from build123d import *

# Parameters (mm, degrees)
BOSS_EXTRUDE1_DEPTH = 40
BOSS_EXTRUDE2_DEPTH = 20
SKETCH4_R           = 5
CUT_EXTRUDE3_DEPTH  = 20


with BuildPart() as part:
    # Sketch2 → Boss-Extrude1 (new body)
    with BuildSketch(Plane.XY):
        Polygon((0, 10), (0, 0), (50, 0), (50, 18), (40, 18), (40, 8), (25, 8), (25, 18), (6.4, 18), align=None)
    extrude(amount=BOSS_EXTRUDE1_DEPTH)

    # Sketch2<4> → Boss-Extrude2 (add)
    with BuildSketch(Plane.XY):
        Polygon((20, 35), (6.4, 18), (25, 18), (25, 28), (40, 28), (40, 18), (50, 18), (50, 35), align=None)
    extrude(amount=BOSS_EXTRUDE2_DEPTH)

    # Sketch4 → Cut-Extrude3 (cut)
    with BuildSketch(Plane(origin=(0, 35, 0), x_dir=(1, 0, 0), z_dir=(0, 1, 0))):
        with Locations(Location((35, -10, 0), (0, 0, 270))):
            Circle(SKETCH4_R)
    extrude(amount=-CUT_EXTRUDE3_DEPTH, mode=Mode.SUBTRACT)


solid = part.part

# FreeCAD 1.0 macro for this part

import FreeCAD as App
import Part
import Sketcher
from FreeCAD import Vector
Q = App.Units.Quantity


def add_polygon(sketch, points):
    """Adds a closed chain of lines whose ends are joined by coincident constraints."""
    first, n = sketch.GeometryCount, len(points)
    for a, b in zip(points, points[1:] + points[:1]):
        sketch.addGeometry(Part.LineSegment(App.Vector(*a, 0), App.Vector(*b, 0)), False)
    for i in range(n):
        sketch.addConstraint(Sketcher.Constraint("Coincident", first + i, 2, first + (i + 1) % n, 1))

doc = App.newDocument("Part")
body = doc.addObject("PartDesign::Body", "Body")

sketch1 = body.newObject("Sketcher::SketchObject", "Sketch")
sketch1.AttachmentSupport = (doc.getObject("XY_Plane"), [""])
sketch1.MapMode = "FlatFace"
add_polygon(sketch1, [(0, 10), (0, 0), (50, 0), (50, 18), (40, 18), (40, 8), (25, 8), (25, 18), (6.4, 18)])
sketch1.addConstraint(Sketcher.Constraint("Vertical", 0))
sketch1.addConstraint(Sketcher.Constraint("Horizontal", 1))
sketch1.addConstraint(Sketcher.Constraint("Vertical", 2))
sketch1.addConstraint(Sketcher.Constraint("Horizontal", 3))
sketch1.addConstraint(Sketcher.Constraint("Vertical", 4))
sketch1.addConstraint(Sketcher.Constraint("Horizontal", 5))
sketch1.addConstraint(Sketcher.Constraint("Vertical", 6))
sketch1.addConstraint(Sketcher.Constraint("Horizontal", 7))
sketch1.addConstraint(Sketcher.Constraint("Coincident", 0, 2, -1, 1))
sketch1.addConstraint(Sketcher.Constraint("Horizontal", 3, 2, 6, 2))
sketch1.addConstraint(Sketcher.Constraint("Equal", 3, 0))
sketch1.addConstraint(Sketcher.Constraint("Equal", 0, 4))
sketch1.addConstraint(Sketcher.Constraint("DistanceX", 1, 1, 1, 2, Q("50 mm")))
sketch1.addConstraint(Sketcher.Constraint("DistanceX", 3, 2, 3, 1, Q("10 mm")))
sketch1.addConstraint(Sketcher.Constraint("DistanceX", 5, 2, 5, 1, Q("15 mm")))
sketch1.addConstraint(Sketcher.Constraint("DistanceY", 2, 1, 2, 2, Q("18 mm")))
sketch1.addConstraint(Sketcher.Constraint("DistanceX", 7, 2, 7, 1, Q("18.6 mm")))
pad1 = body.newObject("PartDesign::Pad", "Pad")
pad1.Profile = sketch1
pad1.Length = 40

sketch2 = body.newObject("Sketcher::SketchObject", "Sketch001")
sketch2.AttachmentSupport = (doc.getObject("XY_Plane"), [""])
sketch2.MapMode = "FlatFace"
add_polygon(sketch2, [(20, 35), (6.4, 18), (25, 18), (25, 28), (40, 28), (40, 18), (50, 18), (50, 35)])
sketch2.addConstraint(Sketcher.Constraint("Horizontal", 1))
sketch2.addConstraint(Sketcher.Constraint("Vertical", 2))
sketch2.addConstraint(Sketcher.Constraint("Horizontal", 3))
sketch2.addConstraint(Sketcher.Constraint("Vertical", 4))
sketch2.addConstraint(Sketcher.Constraint("Horizontal", 5))
sketch2.addConstraint(Sketcher.Constraint("Vertical", 6))
sketch2.addConstraint(Sketcher.Constraint("Horizontal", 7))
sketch2.addConstraint(Sketcher.Constraint("Horizontal", 1, 2, 4, 2))
sketch2.addConstraint(Sketcher.Constraint("Equal", 5, 2))
sketch2.addConstraint(Sketcher.Constraint("DistanceX", 3, 1, 3, 2, Q("15 mm")))
sketch2.addConstraint(Sketcher.Constraint("DistanceX", 5, 1, 5, 2, Q("10 mm")))
sketch2.addConstraint(Sketcher.Constraint("DistanceX", 7, 2, 7, 1, Q("30 mm")))
sketch2.addConstraint(Sketcher.Constraint("DistanceY", 6, 1, 6, 2, Q("17 mm")))
sketch2.addConstraint(Sketcher.Constraint("DistanceX", 1, 1, 1, 2, Q("18.6 mm")))
sketch2.addConstraint(Sketcher.Constraint("DistanceY", -1, 1, 0, 2, Q("18 mm")))
sketch2.addConstraint(Sketcher.Constraint("DistanceX", -1, 1, 1, 2, Q("25 mm")))
pad2 = body.newObject("PartDesign::Pad", "Pad001")
pad2.Profile = sketch2
pad2.Length = 20

sketch3 = body.newObject("Sketcher::SketchObject", "Sketch002")
sketch3.AttachmentSupport = (doc.getObject("XZ_Plane"), [""])
sketch3.MapMode = "FlatFace"
sketch3.AttachmentOffset = App.Placement(Vector(0, 0, -35), App.Rotation())
sketch3.addGeometry(Part.Circle(Vector(35, 10, 0), Vector(0, 0, 1), 5), False)
sketch3.addConstraint(Sketcher.Constraint("Diameter", 0, Q("10 mm")))
sketch3.addConstraint(Sketcher.Constraint("DistanceX", -1, 1, 0, 3, Q("35 mm")))
sketch3.addConstraint(Sketcher.Constraint("DistanceY", -1, 1, 0, 3, Q("10 mm")))
pocket1 = body.newObject("PartDesign::Pocket", "Pocket")
pocket1.Profile = sketch3
pocket1.Length = 20
pocket1.Reversed = True

doc.recompute()
